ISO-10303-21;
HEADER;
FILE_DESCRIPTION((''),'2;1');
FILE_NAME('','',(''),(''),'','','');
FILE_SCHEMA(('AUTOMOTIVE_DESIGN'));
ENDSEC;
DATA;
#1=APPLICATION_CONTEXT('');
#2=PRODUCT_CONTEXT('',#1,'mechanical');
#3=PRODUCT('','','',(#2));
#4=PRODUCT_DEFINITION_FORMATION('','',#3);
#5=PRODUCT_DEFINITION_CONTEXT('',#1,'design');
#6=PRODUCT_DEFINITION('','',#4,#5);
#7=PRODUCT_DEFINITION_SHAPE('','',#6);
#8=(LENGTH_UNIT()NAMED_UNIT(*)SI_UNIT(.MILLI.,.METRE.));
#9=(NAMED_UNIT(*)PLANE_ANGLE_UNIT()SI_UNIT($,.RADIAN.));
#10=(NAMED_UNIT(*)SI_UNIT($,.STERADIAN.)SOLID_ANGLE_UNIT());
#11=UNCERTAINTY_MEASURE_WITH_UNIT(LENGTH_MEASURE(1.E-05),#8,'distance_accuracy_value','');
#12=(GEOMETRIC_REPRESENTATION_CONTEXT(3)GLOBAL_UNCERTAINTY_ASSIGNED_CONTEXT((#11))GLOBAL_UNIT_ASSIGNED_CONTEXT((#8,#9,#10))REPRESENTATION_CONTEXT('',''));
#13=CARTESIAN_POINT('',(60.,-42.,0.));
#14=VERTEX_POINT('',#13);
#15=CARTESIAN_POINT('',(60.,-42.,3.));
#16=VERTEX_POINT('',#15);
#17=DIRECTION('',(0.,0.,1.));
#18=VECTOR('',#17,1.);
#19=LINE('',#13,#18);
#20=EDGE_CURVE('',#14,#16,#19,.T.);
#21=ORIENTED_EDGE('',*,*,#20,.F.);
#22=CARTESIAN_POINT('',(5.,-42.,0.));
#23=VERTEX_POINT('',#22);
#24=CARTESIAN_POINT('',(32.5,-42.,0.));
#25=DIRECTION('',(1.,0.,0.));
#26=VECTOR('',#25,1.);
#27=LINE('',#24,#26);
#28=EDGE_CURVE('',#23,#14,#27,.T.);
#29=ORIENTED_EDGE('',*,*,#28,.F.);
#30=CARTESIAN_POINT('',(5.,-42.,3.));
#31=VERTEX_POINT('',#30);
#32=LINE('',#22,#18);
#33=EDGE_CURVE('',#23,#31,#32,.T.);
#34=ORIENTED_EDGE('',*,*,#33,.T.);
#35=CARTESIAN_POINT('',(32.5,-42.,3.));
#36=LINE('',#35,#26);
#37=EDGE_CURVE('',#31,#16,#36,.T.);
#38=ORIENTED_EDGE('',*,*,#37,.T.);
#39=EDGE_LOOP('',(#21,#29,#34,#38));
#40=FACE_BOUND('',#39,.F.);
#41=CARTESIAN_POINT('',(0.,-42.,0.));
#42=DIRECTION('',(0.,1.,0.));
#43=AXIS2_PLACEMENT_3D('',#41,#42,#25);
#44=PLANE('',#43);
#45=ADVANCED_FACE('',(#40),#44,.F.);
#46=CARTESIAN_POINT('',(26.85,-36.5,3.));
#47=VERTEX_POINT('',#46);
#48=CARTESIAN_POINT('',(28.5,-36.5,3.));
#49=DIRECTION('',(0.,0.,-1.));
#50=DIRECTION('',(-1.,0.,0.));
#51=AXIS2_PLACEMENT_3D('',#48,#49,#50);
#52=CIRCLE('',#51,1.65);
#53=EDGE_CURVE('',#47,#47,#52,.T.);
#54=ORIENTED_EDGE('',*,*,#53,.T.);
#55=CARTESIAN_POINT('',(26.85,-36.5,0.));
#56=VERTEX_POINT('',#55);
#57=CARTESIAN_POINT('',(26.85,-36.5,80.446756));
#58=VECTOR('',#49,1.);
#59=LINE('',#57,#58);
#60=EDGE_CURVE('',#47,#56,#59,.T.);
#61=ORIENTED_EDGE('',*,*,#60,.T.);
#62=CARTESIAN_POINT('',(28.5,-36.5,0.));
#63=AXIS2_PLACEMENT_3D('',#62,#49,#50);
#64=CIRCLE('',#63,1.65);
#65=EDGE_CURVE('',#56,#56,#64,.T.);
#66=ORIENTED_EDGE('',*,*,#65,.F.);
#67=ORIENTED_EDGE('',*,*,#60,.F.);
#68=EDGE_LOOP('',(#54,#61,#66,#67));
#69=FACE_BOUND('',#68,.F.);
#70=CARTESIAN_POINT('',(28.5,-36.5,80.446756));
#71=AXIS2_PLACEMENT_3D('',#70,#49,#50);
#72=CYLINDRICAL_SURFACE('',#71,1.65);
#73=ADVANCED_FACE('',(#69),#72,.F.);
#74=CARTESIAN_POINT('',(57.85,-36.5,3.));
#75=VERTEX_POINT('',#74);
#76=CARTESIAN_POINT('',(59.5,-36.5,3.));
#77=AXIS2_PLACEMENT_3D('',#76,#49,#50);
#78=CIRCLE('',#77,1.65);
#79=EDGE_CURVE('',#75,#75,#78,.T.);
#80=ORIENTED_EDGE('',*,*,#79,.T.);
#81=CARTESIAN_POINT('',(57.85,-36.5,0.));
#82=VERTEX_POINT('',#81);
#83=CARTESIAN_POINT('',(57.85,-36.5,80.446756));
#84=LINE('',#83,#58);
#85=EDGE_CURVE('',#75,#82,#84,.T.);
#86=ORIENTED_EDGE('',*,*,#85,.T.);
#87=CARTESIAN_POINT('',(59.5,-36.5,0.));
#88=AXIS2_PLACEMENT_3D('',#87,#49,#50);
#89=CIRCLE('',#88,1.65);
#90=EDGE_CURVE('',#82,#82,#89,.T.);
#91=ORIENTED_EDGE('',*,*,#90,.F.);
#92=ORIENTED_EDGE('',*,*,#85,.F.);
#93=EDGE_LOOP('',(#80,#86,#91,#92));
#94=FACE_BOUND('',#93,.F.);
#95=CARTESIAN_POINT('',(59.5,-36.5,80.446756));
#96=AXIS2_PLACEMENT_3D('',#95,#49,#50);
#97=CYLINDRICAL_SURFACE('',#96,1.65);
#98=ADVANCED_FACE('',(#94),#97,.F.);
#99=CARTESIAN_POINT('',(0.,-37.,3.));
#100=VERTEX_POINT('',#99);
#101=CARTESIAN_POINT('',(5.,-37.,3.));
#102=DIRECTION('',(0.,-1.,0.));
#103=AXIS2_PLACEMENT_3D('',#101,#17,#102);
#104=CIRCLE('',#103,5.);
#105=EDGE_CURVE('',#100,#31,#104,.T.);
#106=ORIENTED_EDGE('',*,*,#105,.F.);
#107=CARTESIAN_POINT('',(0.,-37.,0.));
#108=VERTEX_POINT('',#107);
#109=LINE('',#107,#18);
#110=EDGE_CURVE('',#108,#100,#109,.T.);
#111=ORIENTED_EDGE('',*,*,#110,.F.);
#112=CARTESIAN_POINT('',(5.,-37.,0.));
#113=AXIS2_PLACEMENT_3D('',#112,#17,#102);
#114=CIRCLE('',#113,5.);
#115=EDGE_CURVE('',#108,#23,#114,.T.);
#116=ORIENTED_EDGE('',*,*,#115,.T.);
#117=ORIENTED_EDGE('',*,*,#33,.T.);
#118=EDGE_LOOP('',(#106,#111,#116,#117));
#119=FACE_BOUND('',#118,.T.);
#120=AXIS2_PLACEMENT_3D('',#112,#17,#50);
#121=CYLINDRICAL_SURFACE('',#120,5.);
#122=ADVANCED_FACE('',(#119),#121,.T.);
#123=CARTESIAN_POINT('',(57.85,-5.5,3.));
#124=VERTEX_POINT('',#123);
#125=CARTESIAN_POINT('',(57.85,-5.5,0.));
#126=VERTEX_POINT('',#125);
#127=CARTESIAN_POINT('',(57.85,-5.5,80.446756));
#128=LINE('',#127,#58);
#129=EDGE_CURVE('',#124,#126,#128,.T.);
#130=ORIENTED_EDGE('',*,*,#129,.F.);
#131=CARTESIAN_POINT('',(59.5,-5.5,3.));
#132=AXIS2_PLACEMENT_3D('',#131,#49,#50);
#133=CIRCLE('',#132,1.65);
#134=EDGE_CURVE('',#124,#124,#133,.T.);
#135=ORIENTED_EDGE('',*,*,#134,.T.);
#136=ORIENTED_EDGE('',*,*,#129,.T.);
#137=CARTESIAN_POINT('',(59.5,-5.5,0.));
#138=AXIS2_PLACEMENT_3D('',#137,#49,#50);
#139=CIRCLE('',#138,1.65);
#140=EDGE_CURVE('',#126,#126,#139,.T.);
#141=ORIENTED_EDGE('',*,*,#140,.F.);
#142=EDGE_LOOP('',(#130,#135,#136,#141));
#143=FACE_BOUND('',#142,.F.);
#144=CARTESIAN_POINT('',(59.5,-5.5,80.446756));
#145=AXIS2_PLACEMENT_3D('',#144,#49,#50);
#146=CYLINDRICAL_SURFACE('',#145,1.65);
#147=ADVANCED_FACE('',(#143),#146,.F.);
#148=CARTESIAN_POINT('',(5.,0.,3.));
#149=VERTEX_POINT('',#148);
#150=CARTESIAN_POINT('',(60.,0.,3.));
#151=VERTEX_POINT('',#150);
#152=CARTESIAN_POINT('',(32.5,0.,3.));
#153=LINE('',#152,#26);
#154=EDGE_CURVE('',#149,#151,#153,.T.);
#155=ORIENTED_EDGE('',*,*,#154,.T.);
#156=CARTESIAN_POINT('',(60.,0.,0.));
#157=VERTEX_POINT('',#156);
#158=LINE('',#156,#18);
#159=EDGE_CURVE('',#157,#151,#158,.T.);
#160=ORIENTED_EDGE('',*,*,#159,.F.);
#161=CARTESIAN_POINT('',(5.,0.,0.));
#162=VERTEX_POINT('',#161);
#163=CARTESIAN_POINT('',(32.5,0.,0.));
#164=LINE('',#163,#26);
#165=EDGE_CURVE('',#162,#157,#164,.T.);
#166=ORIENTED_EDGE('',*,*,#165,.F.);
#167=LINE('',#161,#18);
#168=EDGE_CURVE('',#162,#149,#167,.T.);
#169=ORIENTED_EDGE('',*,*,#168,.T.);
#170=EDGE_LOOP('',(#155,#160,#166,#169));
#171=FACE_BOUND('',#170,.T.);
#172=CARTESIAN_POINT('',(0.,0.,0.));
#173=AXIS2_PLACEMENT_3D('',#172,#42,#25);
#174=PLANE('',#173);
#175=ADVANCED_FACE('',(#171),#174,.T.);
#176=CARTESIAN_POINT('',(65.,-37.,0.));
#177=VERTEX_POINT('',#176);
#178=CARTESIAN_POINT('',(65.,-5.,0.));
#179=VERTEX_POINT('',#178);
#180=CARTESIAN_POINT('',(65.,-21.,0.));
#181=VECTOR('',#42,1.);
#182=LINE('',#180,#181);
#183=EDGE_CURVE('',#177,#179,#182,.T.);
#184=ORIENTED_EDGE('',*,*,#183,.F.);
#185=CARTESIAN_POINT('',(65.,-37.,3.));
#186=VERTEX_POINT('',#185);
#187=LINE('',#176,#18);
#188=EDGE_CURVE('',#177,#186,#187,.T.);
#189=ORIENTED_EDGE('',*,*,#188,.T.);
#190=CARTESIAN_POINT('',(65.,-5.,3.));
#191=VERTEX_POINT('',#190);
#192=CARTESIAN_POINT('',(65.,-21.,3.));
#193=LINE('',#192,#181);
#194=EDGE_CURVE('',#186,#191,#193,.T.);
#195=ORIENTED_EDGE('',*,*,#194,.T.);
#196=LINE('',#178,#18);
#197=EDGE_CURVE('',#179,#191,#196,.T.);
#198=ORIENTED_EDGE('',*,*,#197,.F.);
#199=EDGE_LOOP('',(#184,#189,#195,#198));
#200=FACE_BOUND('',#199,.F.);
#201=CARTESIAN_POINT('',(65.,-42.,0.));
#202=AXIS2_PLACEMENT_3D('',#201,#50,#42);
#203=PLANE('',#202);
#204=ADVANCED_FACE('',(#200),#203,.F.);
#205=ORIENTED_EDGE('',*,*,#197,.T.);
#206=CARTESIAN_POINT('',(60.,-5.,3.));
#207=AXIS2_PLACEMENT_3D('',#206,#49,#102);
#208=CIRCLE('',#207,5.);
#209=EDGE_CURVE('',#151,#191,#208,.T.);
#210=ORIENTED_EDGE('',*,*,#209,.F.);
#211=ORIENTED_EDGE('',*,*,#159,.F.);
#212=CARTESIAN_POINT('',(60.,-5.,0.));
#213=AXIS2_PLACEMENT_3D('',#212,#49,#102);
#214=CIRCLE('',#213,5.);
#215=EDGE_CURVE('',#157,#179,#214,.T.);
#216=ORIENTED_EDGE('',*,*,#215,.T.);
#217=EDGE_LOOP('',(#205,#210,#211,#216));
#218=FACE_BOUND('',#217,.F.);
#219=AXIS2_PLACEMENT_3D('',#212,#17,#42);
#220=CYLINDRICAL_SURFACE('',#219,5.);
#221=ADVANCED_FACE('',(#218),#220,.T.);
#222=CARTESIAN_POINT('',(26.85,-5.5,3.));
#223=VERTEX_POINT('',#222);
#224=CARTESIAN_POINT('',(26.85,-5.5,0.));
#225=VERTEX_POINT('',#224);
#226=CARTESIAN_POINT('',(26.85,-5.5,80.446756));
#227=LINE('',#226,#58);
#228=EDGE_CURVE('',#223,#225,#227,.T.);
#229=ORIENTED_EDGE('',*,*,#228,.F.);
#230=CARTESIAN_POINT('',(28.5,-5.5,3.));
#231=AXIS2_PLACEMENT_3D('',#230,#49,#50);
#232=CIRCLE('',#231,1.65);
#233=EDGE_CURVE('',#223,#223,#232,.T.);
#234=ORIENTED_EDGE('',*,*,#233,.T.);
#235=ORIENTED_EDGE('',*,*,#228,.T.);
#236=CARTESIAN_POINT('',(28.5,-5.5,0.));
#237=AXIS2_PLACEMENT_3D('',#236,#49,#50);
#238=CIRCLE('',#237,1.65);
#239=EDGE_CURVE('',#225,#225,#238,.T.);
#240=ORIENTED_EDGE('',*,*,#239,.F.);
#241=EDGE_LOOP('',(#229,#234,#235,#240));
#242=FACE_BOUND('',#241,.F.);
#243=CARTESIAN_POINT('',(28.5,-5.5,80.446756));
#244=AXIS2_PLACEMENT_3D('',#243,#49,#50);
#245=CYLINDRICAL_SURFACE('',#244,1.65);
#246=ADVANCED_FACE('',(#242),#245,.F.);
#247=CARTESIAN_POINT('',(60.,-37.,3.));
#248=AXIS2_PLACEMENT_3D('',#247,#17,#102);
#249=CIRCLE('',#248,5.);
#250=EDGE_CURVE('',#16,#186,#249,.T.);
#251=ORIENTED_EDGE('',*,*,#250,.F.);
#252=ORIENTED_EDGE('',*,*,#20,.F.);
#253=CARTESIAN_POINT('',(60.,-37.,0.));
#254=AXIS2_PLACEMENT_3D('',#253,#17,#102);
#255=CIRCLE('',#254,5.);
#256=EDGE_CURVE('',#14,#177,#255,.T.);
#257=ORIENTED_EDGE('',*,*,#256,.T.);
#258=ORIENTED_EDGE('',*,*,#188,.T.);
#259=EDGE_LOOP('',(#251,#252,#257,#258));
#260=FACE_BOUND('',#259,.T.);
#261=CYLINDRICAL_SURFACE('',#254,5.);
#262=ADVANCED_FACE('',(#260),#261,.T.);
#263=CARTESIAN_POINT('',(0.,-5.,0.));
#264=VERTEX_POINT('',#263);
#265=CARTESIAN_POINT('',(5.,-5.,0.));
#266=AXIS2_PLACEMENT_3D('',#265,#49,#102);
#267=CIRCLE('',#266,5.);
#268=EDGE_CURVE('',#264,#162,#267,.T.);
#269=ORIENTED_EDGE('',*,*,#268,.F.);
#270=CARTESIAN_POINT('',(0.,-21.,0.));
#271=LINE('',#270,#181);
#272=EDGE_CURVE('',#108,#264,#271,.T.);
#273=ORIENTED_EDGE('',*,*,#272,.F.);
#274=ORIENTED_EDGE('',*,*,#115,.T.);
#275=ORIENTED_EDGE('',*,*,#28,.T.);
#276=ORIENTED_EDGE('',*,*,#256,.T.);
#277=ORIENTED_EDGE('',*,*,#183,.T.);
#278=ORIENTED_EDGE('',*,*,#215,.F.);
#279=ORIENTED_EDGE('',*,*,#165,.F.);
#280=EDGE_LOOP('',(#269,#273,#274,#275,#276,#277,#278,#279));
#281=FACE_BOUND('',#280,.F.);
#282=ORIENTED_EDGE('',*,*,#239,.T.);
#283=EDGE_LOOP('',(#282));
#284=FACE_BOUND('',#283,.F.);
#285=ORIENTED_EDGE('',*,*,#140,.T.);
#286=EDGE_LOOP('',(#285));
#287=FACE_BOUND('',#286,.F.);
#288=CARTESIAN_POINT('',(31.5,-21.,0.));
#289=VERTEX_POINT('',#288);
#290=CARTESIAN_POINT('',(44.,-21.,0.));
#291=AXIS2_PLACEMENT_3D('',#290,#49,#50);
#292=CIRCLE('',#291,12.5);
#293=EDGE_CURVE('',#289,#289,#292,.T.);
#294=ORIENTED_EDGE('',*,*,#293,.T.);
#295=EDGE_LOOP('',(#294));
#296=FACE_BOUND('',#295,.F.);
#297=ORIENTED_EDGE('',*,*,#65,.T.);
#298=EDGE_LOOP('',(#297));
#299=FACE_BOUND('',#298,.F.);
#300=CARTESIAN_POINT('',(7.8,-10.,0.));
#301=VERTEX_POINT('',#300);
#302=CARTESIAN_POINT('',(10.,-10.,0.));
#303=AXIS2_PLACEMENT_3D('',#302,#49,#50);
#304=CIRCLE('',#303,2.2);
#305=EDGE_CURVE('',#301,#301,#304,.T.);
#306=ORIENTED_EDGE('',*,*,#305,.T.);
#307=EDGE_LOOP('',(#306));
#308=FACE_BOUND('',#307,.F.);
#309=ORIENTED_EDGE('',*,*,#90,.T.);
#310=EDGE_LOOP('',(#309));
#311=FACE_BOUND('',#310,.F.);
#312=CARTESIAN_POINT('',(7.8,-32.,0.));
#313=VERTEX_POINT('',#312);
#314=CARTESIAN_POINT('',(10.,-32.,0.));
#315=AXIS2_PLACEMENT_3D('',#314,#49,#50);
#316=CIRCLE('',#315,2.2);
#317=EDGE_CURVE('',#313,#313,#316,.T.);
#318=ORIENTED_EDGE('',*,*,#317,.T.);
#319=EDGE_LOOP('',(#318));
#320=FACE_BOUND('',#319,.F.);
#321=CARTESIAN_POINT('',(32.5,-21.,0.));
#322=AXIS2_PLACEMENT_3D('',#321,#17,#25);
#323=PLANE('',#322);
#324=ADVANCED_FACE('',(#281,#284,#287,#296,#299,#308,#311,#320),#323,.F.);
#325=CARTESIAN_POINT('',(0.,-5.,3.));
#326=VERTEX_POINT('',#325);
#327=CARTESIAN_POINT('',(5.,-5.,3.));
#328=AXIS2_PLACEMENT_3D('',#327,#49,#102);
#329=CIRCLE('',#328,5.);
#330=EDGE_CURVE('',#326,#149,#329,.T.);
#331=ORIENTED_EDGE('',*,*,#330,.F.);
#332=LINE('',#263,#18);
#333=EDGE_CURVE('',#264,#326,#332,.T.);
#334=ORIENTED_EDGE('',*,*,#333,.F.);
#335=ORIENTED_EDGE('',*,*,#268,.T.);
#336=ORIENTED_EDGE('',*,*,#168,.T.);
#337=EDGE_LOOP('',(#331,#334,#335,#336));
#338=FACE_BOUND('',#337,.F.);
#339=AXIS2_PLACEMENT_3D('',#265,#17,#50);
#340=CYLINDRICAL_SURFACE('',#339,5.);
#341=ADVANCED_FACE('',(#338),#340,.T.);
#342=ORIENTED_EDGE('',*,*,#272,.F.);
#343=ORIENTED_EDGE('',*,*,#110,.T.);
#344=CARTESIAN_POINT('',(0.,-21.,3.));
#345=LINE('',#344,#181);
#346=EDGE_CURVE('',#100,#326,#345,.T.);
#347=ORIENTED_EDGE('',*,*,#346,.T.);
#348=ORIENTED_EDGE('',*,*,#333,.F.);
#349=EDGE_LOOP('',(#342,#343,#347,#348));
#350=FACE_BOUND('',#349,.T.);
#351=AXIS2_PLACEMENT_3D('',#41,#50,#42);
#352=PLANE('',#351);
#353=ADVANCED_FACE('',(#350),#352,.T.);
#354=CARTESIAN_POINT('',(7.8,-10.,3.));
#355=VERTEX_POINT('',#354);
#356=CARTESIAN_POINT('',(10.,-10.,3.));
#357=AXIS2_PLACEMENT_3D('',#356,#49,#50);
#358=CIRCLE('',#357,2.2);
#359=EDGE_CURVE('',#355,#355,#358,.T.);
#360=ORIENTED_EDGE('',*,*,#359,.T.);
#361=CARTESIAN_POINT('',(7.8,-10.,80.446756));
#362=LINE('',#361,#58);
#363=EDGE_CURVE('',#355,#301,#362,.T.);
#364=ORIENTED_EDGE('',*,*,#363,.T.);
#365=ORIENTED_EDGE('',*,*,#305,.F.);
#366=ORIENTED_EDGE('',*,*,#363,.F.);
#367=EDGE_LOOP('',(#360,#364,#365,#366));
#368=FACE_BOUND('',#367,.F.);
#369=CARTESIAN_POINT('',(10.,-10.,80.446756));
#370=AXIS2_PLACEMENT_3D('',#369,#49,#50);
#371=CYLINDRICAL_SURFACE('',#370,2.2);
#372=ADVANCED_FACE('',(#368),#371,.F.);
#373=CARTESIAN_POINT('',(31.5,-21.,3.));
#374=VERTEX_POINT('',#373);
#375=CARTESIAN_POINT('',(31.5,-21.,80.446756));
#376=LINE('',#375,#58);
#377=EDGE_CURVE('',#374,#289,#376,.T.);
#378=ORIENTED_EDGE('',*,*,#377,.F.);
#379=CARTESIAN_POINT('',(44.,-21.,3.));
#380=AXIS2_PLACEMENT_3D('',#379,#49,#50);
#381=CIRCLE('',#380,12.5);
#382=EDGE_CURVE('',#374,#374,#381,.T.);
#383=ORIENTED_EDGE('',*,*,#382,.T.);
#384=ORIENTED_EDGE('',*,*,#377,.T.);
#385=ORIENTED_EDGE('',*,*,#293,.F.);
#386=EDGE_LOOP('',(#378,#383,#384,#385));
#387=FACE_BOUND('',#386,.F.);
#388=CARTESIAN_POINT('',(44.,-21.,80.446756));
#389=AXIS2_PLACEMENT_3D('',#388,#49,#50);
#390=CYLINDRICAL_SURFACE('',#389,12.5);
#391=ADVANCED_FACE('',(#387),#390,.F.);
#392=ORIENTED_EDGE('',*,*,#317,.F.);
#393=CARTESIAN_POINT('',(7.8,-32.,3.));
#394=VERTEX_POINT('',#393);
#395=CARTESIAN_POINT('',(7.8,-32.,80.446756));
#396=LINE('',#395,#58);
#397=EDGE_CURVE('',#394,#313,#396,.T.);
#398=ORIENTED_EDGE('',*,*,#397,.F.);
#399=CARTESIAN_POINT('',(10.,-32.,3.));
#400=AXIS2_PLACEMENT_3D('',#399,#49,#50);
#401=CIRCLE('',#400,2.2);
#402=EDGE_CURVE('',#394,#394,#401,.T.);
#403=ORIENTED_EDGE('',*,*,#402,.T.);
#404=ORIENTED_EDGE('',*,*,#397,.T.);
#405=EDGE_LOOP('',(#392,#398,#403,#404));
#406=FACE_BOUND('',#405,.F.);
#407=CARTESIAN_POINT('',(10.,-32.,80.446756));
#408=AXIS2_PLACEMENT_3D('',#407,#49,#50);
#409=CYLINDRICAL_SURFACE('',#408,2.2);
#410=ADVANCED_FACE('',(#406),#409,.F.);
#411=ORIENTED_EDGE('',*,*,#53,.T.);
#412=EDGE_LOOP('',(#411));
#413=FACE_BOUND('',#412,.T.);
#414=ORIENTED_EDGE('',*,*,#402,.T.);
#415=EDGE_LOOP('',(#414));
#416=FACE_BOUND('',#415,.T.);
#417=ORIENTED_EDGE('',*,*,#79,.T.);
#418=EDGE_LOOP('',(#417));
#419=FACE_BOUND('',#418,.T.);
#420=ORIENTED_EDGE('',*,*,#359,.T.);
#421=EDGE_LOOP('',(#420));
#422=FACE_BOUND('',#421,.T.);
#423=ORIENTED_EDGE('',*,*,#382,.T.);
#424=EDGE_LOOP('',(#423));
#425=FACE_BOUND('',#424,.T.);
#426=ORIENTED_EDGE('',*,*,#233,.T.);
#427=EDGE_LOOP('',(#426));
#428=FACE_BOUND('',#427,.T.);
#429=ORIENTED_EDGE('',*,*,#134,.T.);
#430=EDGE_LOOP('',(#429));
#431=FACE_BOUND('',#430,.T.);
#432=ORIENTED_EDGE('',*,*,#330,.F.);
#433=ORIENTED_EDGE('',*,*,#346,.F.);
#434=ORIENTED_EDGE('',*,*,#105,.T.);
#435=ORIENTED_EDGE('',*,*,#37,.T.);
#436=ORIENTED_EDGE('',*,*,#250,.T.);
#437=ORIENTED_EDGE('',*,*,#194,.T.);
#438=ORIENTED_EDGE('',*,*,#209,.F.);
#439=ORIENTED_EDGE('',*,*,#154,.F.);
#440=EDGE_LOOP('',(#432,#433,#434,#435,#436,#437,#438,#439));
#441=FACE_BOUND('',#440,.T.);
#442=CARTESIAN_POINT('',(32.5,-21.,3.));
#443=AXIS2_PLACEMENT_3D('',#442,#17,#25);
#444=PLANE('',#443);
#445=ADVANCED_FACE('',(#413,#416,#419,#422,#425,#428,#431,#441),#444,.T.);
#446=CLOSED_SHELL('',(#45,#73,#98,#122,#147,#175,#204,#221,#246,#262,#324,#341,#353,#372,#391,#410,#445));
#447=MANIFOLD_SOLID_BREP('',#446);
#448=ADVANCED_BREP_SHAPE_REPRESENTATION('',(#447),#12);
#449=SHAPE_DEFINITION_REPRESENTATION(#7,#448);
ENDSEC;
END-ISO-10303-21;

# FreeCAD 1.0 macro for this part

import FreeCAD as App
import Part
import Sketcher


def edges_at(feature, points):
    """Names of the edges that pass closest to the given points."""
    edges = feature.Shape.Edges
    near = lambda p: min(range(len(edges)), key=lambda i: edges[i].distToShape(Part.Vertex(*p))[0])
    return sorted({f"Edge{near(p) + 1}" for p in points})


def add_polygon(sketch, points):
    """Adds a closed chain of lines whose ends are joined by coincident constraints."""
    first, n = sketch.GeometryCount, len(points)
    for a, b in zip(points, points[1:] + points[:1]):
        sketch.addGeometry(Part.LineSegment(App.Vector(*a, 0), App.Vector(*b, 0)), False)
    for i in range(n):
        sketch.addConstraint(Sketcher.Constraint("Coincident", first + i, 2, first + (i + 1) % n, 1))

doc = App.newDocument("Part")
body = doc.addObject("PartDesign::Body", "Body")

# Sketch on XY plane
sketch1 = body.newObject("Sketcher::SketchObject", "Sketch")
sketch1.AttachmentSupport = (doc.getObject("XY_Plane"), [""])
sketch1.MapMode = "FlatFace"
add_polygon(sketch1, [(0, 0), (0, -42), (65, -42), (65, 0)])  # lines 0-3
sketch1.addConstraint([
    Sketcher.Constraint("Vertical", 0),
    Sketcher.Constraint("Horizontal", 1),
    Sketcher.Constraint("Vertical", 2),
    Sketcher.Constraint("Horizontal", 3),
    Sketcher.Constraint("Coincident", 3, 2, -1, 1),
    Sketcher.Constraint("DistanceX", 1, 1, 1, 2, 65.0),
    Sketcher.Constraint("DistanceY", 0, 2, 0, 1, 42.0),
])
pad1 = body.newObject("PartDesign::Pad", "Pad")
pad1.Profile = sketch1
pad1.Length = 3

# Sketch on XY plane
sketch2 = body.newObject("Sketcher::SketchObject", "Sketch001")
sketch2.AttachmentSupport = (doc.getObject("XY_Plane"), [""])
sketch2.MapMode = "FlatFace"
sketch2.AttachmentOffset = App.Placement(App.Vector(0, 0, 3), App.Rotation())
sketch2.addGeometry([
    Part.Circle(App.Vector(28.5, -5.5, 0), App.Vector(0, 0, 1), 1.65),
    Part.Circle(App.Vector(28.5, -36.5, 0), App.Vector(0, 0, 1), 1.65),
    Part.Circle(App.Vector(59.5, -36.5, 0), App.Vector(0, 0, 1), 1.65),
    Part.Circle(App.Vector(59.5, -5.5, 0), App.Vector(0, 0, 1), 1.65),
], False)
sketch2.addConstraint([
    Sketcher.Constraint("Equal", 0, 1),
    Sketcher.Constraint("Equal", 1, 2),
    Sketcher.Constraint("Equal", 2, 3),
    Sketcher.Constraint("Horizontal", 1, 3, 2, 3),
    Sketcher.Constraint("Horizontal", 0, 3, 3, 3),
    Sketcher.Constraint("Vertical", 0, 3, 1, 3),
    Sketcher.Constraint("Vertical", 2, 3, 3, 3),
    Sketcher.Constraint("Diameter", 0, 3.3),
    Sketcher.Constraint("DistanceY", 1, 3, 0, 3, 31.0),
    Sketcher.Constraint("DistanceX", 1, 3, 2, 3, 31.0),
    Sketcher.Constraint("DistanceX", -1, 1, 0, 3, 28.5),
    Sketcher.Constraint("DistanceY", 0, 3, -1, 1, 5.5),
])
doc.recompute()
hole = body.newObject("PartDesign::Hole", "Hole")
hole.Profile = sketch2
hole.ThreadType = "None"
hole.Diameter = 3.3
hole.DepthType = "ThroughAll"

# Sketch on XY plane
sketch3 = body.newObject("Sketcher::SketchObject", "Sketch002")
sketch3.AttachmentSupport = (doc.getObject("XY_Plane"), [""])
sketch3.MapMode = "FlatFace"
sketch3.AttachmentOffset = App.Placement(App.Vector(0, 0, 3), App.Rotation())
sketch3.addGeometry([
    Part.Circle(App.Vector(10, -10, 0), App.Vector(0, 0, 1), 2.2),
    Part.Circle(App.Vector(10, -32, 0), App.Vector(0, 0, 1), 2.2),
], False)
sketch3.addConstraint([
    Sketcher.Constraint("Equal", 0, 1),
    Sketcher.Constraint("Vertical", 0, 3, 1, 3),
    Sketcher.Constraint("Diameter", 0, 4.4),
    Sketcher.Constraint("DistanceX", -1, 1, 0, 3, 10.0),
    Sketcher.Constraint("DistanceY", 0, 3, -1, 1, 10.0),
    Sketcher.Constraint("DistanceY", 1, 3, -1, 1, 32.0),
])
doc.recompute()
hole2 = body.newObject("PartDesign::Hole", "Hole001")
hole2.Profile = sketch3
hole2.ThreadType = "None"
hole2.Diameter = 4.4
hole2.DepthType = "ThroughAll"

# Sketch on XY plane
sketch4 = body.newObject("Sketcher::SketchObject", "Sketch003")
sketch4.AttachmentSupport = (doc.getObject("XY_Plane"), [""])
sketch4.MapMode = "FlatFace"
sketch4.AttachmentOffset = App.Placement(App.Vector(0, 0, 3), App.Rotation())
sketch4.addGeometry(Part.Circle(App.Vector(44, -21, 0), App.Vector(0, 0, 1), 12.5), False)
sketch4.addConstraint([
    Sketcher.Constraint("Diameter", 0, 25.0),
    Sketcher.Constraint("DistanceX", -1, 1, 0, 3, 44.0),
    Sketcher.Constraint("DistanceY", 0, 3, -1, 1, 21.0),
])
doc.recompute()
hole3 = body.newObject("PartDesign::Hole", "Hole002")
hole3.Profile = sketch4
hole3.ThreadType = "None"
hole3.Diameter = 25
hole3.DepthType = "ThroughAll"
doc.recompute()

fillet = body.newObject("PartDesign::Fillet", "Fillet")
fillet.Base = (hole3, edges_at(hole3, [
    (0, -42, 1.5),
    (65, -42, 1.5),
    (65, 0, 1.5),
    (0, 0, 1.5),
]))
fillet.Radius = 5

doc.recompute()
